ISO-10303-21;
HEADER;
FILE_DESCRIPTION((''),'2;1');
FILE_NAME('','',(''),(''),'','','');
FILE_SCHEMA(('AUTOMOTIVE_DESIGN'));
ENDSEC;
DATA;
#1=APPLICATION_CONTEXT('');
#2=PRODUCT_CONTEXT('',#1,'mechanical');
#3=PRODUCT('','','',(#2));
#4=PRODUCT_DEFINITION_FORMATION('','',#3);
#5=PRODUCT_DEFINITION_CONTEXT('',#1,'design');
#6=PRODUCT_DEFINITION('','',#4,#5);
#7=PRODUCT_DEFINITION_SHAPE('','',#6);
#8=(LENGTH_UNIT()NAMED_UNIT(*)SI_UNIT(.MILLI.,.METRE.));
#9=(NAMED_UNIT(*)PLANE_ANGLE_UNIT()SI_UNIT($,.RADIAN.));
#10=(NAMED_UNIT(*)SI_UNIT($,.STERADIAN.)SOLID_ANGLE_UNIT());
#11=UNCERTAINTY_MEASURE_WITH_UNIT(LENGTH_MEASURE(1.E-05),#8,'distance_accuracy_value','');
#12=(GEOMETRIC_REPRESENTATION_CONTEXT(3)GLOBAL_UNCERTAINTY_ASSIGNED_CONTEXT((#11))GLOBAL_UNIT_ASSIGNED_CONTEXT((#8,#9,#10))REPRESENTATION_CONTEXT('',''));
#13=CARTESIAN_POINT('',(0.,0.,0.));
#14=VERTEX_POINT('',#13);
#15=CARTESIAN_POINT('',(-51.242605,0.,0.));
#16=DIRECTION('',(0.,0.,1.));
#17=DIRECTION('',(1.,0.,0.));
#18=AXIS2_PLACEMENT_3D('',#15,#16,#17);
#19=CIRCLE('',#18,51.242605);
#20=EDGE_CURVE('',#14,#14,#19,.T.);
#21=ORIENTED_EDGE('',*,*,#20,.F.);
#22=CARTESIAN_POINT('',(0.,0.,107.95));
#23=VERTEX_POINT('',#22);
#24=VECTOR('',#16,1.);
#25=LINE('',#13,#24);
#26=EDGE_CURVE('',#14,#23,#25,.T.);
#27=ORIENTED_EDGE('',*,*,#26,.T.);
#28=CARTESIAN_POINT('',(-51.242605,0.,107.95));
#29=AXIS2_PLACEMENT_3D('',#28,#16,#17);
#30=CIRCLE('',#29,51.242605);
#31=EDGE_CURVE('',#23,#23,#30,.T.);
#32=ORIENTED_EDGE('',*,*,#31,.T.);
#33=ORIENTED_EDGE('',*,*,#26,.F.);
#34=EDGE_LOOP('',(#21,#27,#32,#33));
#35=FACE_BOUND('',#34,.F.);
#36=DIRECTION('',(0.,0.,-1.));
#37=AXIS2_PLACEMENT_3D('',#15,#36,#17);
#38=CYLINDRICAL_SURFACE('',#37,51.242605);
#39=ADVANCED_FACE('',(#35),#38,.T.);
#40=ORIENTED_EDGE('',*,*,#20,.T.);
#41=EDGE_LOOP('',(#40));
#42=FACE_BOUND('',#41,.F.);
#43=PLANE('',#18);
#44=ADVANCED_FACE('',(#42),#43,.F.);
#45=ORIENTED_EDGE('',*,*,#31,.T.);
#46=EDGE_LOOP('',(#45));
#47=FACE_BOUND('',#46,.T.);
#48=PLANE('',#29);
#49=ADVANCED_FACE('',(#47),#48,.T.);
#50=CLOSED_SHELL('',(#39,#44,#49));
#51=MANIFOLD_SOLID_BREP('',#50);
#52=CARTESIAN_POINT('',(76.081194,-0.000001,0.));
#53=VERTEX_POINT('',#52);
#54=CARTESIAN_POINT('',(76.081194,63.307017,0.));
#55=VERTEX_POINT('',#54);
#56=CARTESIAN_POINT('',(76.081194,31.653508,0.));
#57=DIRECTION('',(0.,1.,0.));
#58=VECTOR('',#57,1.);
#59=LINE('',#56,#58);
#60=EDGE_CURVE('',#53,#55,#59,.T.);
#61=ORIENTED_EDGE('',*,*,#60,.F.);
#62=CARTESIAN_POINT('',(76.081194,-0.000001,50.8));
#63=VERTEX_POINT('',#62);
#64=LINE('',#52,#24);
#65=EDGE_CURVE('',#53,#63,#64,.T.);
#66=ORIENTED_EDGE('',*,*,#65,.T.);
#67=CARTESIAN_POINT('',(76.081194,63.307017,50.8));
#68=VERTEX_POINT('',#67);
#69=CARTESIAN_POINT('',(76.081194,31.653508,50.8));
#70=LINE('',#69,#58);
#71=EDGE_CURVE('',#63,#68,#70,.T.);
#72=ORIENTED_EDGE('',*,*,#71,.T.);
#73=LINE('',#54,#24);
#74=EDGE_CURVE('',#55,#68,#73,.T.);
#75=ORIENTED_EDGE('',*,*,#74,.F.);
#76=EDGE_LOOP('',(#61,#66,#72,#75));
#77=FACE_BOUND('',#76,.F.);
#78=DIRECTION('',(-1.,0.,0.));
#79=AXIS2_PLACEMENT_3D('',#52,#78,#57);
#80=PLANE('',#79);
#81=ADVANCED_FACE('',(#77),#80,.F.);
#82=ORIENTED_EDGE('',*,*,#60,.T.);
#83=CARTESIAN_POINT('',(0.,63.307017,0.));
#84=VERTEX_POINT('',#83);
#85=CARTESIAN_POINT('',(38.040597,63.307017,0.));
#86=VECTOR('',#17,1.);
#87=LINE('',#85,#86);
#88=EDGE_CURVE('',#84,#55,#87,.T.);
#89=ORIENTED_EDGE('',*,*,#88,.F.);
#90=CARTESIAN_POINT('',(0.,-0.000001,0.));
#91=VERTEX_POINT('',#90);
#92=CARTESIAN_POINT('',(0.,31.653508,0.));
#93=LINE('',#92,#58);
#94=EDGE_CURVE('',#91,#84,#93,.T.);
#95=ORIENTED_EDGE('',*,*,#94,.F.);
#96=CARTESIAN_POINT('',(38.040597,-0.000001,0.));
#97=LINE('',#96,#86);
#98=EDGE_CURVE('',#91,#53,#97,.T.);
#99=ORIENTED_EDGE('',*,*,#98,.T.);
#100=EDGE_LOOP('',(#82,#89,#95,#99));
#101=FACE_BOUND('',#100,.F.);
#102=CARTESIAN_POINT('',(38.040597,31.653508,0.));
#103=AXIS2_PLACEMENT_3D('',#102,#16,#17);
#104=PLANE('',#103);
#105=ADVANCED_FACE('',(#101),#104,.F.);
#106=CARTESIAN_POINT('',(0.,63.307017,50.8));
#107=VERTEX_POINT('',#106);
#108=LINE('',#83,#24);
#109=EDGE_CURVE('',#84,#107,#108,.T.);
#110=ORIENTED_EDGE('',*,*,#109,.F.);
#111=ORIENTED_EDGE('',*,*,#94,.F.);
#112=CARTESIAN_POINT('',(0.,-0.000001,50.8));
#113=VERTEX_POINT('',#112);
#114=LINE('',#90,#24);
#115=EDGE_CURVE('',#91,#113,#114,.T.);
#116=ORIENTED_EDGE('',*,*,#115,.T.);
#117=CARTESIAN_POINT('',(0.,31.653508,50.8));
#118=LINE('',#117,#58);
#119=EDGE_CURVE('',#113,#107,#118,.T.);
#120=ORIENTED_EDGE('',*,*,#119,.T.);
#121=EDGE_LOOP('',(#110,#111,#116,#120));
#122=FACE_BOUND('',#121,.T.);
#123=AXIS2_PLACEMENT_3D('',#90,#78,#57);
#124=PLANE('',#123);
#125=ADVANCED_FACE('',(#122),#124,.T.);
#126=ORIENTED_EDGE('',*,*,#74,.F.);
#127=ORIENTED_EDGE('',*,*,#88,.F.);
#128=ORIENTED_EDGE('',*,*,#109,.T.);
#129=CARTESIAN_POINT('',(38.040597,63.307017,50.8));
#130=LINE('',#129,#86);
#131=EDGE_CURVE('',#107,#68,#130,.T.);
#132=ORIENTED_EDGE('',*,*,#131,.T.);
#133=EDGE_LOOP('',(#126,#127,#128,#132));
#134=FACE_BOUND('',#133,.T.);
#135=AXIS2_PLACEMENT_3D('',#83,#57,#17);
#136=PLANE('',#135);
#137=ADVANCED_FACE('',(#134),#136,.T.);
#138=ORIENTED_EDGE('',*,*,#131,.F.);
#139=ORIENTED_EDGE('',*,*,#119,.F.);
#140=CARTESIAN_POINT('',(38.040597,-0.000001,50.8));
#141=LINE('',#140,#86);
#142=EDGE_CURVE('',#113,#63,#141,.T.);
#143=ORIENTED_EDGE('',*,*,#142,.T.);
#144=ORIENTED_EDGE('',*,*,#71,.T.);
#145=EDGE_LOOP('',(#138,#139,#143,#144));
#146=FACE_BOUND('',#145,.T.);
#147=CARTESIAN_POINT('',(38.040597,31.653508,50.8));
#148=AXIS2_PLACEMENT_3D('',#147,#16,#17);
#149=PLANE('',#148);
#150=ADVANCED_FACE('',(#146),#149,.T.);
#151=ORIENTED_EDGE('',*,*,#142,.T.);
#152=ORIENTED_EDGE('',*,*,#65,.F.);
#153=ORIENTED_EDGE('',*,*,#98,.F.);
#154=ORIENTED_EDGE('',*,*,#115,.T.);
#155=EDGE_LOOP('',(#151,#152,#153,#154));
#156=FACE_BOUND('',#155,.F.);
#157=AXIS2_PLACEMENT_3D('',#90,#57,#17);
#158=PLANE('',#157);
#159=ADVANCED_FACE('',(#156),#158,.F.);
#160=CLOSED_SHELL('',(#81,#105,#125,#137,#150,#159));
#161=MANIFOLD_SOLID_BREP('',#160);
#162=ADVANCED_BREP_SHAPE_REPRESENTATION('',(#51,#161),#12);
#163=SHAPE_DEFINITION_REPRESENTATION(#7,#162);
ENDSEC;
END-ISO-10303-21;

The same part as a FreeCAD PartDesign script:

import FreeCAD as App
import Part
import Sketcher
from FreeCAD import Vector
Q = App.Units.Quantity


def add_polygon(sketch, points):
    """Adds a closed chain of lines whose ends are joined by coincident constraints."""
    first, n = sketch.GeometryCount, len(points)
    for a, b in zip(points, points[1:] + points[:1]):
        sketch.addGeometry(Part.LineSegment(App.Vector(*a, 0), App.Vector(*b, 0)), False)
    for i in range(n):
        sketch.addConstraint(Sketcher.Constraint("Coincident", first + i, 2, first + (i + 1) % n, 1))

doc = App.newDocument("Part")
params = doc.addObject("Spreadsheet::Sheet", "Params")
for row, (alias, value) in enumerate([
    ("pad1_length", "4.25 in"),
    ("pad2_length", "2 in"),
], start=1):
    params.set(f"A{row}", alias)
    params.set(f"B{row}", "=" + value)
    params.setAlias(f"B{row}", alias)

body = doc.addObject("PartDesign::Body", "Body")

sketch1 = body.newObject("Sketcher::SketchObject", "Sketch")
sketch1.AttachmentSupport = (doc.getObject("XY_Plane"), [""])
sketch1.MapMode = "FlatFace"
sketch1.addGeometry(Part.Circle(Vector(-51.242605, 0, 0), Vector(0, 0, 1), 51.242605), False)
sketch1.addConstraint([
    Sketcher.Constraint("PointOnObject", 0, 3, -1),
    Sketcher.Constraint("Diameter", 0, Q("102.48521 mm")),
    Sketcher.Constraint("DistanceX", 0, 3, -1, 1, Q("51.242605 mm")),
])
pad1 = body.newObject("PartDesign::Pad", "Pad")
pad1.Profile = sketch1
pad1.setExpression("Length", "Params.pad1_length")
body2 = doc.addObject("PartDesign::Body", "Body001")

sketch2 = body2.newObject("Sketcher::SketchObject", "Sketch001")
sketch2.AttachmentSupport = (doc.getObject("XY_Plane001"), [""])
sketch2.MapMode = "FlatFace"
add_polygon(sketch2, [(0, 63.307017), (0, 0), (76.081194, 0), (76.081194, 63.307017)])
sketch2.addConstraint([
    Sketcher.Constraint("Vertical", 0),
    Sketcher.Constraint("Horizontal", 1),
    Sketcher.Constraint("Vertical", 2),
    Sketcher.Constraint("Horizontal", 3),
    Sketcher.Constraint("Coincident", 0, 2, -1, 1),
    Sketcher.Constraint("DistanceX", 1, 1, 1, 2, Q("76.081194 mm")),
    Sketcher.Constraint("DistanceY", 0, 2, 0, 1, Q("63.307017 mm")),
])
pad2 = body2.newObject("PartDesign::Pad", "Pad001")
pad2.Profile = sketch2
pad2.setExpression("Length", "Params.pad2_length")

doc.recompute()
